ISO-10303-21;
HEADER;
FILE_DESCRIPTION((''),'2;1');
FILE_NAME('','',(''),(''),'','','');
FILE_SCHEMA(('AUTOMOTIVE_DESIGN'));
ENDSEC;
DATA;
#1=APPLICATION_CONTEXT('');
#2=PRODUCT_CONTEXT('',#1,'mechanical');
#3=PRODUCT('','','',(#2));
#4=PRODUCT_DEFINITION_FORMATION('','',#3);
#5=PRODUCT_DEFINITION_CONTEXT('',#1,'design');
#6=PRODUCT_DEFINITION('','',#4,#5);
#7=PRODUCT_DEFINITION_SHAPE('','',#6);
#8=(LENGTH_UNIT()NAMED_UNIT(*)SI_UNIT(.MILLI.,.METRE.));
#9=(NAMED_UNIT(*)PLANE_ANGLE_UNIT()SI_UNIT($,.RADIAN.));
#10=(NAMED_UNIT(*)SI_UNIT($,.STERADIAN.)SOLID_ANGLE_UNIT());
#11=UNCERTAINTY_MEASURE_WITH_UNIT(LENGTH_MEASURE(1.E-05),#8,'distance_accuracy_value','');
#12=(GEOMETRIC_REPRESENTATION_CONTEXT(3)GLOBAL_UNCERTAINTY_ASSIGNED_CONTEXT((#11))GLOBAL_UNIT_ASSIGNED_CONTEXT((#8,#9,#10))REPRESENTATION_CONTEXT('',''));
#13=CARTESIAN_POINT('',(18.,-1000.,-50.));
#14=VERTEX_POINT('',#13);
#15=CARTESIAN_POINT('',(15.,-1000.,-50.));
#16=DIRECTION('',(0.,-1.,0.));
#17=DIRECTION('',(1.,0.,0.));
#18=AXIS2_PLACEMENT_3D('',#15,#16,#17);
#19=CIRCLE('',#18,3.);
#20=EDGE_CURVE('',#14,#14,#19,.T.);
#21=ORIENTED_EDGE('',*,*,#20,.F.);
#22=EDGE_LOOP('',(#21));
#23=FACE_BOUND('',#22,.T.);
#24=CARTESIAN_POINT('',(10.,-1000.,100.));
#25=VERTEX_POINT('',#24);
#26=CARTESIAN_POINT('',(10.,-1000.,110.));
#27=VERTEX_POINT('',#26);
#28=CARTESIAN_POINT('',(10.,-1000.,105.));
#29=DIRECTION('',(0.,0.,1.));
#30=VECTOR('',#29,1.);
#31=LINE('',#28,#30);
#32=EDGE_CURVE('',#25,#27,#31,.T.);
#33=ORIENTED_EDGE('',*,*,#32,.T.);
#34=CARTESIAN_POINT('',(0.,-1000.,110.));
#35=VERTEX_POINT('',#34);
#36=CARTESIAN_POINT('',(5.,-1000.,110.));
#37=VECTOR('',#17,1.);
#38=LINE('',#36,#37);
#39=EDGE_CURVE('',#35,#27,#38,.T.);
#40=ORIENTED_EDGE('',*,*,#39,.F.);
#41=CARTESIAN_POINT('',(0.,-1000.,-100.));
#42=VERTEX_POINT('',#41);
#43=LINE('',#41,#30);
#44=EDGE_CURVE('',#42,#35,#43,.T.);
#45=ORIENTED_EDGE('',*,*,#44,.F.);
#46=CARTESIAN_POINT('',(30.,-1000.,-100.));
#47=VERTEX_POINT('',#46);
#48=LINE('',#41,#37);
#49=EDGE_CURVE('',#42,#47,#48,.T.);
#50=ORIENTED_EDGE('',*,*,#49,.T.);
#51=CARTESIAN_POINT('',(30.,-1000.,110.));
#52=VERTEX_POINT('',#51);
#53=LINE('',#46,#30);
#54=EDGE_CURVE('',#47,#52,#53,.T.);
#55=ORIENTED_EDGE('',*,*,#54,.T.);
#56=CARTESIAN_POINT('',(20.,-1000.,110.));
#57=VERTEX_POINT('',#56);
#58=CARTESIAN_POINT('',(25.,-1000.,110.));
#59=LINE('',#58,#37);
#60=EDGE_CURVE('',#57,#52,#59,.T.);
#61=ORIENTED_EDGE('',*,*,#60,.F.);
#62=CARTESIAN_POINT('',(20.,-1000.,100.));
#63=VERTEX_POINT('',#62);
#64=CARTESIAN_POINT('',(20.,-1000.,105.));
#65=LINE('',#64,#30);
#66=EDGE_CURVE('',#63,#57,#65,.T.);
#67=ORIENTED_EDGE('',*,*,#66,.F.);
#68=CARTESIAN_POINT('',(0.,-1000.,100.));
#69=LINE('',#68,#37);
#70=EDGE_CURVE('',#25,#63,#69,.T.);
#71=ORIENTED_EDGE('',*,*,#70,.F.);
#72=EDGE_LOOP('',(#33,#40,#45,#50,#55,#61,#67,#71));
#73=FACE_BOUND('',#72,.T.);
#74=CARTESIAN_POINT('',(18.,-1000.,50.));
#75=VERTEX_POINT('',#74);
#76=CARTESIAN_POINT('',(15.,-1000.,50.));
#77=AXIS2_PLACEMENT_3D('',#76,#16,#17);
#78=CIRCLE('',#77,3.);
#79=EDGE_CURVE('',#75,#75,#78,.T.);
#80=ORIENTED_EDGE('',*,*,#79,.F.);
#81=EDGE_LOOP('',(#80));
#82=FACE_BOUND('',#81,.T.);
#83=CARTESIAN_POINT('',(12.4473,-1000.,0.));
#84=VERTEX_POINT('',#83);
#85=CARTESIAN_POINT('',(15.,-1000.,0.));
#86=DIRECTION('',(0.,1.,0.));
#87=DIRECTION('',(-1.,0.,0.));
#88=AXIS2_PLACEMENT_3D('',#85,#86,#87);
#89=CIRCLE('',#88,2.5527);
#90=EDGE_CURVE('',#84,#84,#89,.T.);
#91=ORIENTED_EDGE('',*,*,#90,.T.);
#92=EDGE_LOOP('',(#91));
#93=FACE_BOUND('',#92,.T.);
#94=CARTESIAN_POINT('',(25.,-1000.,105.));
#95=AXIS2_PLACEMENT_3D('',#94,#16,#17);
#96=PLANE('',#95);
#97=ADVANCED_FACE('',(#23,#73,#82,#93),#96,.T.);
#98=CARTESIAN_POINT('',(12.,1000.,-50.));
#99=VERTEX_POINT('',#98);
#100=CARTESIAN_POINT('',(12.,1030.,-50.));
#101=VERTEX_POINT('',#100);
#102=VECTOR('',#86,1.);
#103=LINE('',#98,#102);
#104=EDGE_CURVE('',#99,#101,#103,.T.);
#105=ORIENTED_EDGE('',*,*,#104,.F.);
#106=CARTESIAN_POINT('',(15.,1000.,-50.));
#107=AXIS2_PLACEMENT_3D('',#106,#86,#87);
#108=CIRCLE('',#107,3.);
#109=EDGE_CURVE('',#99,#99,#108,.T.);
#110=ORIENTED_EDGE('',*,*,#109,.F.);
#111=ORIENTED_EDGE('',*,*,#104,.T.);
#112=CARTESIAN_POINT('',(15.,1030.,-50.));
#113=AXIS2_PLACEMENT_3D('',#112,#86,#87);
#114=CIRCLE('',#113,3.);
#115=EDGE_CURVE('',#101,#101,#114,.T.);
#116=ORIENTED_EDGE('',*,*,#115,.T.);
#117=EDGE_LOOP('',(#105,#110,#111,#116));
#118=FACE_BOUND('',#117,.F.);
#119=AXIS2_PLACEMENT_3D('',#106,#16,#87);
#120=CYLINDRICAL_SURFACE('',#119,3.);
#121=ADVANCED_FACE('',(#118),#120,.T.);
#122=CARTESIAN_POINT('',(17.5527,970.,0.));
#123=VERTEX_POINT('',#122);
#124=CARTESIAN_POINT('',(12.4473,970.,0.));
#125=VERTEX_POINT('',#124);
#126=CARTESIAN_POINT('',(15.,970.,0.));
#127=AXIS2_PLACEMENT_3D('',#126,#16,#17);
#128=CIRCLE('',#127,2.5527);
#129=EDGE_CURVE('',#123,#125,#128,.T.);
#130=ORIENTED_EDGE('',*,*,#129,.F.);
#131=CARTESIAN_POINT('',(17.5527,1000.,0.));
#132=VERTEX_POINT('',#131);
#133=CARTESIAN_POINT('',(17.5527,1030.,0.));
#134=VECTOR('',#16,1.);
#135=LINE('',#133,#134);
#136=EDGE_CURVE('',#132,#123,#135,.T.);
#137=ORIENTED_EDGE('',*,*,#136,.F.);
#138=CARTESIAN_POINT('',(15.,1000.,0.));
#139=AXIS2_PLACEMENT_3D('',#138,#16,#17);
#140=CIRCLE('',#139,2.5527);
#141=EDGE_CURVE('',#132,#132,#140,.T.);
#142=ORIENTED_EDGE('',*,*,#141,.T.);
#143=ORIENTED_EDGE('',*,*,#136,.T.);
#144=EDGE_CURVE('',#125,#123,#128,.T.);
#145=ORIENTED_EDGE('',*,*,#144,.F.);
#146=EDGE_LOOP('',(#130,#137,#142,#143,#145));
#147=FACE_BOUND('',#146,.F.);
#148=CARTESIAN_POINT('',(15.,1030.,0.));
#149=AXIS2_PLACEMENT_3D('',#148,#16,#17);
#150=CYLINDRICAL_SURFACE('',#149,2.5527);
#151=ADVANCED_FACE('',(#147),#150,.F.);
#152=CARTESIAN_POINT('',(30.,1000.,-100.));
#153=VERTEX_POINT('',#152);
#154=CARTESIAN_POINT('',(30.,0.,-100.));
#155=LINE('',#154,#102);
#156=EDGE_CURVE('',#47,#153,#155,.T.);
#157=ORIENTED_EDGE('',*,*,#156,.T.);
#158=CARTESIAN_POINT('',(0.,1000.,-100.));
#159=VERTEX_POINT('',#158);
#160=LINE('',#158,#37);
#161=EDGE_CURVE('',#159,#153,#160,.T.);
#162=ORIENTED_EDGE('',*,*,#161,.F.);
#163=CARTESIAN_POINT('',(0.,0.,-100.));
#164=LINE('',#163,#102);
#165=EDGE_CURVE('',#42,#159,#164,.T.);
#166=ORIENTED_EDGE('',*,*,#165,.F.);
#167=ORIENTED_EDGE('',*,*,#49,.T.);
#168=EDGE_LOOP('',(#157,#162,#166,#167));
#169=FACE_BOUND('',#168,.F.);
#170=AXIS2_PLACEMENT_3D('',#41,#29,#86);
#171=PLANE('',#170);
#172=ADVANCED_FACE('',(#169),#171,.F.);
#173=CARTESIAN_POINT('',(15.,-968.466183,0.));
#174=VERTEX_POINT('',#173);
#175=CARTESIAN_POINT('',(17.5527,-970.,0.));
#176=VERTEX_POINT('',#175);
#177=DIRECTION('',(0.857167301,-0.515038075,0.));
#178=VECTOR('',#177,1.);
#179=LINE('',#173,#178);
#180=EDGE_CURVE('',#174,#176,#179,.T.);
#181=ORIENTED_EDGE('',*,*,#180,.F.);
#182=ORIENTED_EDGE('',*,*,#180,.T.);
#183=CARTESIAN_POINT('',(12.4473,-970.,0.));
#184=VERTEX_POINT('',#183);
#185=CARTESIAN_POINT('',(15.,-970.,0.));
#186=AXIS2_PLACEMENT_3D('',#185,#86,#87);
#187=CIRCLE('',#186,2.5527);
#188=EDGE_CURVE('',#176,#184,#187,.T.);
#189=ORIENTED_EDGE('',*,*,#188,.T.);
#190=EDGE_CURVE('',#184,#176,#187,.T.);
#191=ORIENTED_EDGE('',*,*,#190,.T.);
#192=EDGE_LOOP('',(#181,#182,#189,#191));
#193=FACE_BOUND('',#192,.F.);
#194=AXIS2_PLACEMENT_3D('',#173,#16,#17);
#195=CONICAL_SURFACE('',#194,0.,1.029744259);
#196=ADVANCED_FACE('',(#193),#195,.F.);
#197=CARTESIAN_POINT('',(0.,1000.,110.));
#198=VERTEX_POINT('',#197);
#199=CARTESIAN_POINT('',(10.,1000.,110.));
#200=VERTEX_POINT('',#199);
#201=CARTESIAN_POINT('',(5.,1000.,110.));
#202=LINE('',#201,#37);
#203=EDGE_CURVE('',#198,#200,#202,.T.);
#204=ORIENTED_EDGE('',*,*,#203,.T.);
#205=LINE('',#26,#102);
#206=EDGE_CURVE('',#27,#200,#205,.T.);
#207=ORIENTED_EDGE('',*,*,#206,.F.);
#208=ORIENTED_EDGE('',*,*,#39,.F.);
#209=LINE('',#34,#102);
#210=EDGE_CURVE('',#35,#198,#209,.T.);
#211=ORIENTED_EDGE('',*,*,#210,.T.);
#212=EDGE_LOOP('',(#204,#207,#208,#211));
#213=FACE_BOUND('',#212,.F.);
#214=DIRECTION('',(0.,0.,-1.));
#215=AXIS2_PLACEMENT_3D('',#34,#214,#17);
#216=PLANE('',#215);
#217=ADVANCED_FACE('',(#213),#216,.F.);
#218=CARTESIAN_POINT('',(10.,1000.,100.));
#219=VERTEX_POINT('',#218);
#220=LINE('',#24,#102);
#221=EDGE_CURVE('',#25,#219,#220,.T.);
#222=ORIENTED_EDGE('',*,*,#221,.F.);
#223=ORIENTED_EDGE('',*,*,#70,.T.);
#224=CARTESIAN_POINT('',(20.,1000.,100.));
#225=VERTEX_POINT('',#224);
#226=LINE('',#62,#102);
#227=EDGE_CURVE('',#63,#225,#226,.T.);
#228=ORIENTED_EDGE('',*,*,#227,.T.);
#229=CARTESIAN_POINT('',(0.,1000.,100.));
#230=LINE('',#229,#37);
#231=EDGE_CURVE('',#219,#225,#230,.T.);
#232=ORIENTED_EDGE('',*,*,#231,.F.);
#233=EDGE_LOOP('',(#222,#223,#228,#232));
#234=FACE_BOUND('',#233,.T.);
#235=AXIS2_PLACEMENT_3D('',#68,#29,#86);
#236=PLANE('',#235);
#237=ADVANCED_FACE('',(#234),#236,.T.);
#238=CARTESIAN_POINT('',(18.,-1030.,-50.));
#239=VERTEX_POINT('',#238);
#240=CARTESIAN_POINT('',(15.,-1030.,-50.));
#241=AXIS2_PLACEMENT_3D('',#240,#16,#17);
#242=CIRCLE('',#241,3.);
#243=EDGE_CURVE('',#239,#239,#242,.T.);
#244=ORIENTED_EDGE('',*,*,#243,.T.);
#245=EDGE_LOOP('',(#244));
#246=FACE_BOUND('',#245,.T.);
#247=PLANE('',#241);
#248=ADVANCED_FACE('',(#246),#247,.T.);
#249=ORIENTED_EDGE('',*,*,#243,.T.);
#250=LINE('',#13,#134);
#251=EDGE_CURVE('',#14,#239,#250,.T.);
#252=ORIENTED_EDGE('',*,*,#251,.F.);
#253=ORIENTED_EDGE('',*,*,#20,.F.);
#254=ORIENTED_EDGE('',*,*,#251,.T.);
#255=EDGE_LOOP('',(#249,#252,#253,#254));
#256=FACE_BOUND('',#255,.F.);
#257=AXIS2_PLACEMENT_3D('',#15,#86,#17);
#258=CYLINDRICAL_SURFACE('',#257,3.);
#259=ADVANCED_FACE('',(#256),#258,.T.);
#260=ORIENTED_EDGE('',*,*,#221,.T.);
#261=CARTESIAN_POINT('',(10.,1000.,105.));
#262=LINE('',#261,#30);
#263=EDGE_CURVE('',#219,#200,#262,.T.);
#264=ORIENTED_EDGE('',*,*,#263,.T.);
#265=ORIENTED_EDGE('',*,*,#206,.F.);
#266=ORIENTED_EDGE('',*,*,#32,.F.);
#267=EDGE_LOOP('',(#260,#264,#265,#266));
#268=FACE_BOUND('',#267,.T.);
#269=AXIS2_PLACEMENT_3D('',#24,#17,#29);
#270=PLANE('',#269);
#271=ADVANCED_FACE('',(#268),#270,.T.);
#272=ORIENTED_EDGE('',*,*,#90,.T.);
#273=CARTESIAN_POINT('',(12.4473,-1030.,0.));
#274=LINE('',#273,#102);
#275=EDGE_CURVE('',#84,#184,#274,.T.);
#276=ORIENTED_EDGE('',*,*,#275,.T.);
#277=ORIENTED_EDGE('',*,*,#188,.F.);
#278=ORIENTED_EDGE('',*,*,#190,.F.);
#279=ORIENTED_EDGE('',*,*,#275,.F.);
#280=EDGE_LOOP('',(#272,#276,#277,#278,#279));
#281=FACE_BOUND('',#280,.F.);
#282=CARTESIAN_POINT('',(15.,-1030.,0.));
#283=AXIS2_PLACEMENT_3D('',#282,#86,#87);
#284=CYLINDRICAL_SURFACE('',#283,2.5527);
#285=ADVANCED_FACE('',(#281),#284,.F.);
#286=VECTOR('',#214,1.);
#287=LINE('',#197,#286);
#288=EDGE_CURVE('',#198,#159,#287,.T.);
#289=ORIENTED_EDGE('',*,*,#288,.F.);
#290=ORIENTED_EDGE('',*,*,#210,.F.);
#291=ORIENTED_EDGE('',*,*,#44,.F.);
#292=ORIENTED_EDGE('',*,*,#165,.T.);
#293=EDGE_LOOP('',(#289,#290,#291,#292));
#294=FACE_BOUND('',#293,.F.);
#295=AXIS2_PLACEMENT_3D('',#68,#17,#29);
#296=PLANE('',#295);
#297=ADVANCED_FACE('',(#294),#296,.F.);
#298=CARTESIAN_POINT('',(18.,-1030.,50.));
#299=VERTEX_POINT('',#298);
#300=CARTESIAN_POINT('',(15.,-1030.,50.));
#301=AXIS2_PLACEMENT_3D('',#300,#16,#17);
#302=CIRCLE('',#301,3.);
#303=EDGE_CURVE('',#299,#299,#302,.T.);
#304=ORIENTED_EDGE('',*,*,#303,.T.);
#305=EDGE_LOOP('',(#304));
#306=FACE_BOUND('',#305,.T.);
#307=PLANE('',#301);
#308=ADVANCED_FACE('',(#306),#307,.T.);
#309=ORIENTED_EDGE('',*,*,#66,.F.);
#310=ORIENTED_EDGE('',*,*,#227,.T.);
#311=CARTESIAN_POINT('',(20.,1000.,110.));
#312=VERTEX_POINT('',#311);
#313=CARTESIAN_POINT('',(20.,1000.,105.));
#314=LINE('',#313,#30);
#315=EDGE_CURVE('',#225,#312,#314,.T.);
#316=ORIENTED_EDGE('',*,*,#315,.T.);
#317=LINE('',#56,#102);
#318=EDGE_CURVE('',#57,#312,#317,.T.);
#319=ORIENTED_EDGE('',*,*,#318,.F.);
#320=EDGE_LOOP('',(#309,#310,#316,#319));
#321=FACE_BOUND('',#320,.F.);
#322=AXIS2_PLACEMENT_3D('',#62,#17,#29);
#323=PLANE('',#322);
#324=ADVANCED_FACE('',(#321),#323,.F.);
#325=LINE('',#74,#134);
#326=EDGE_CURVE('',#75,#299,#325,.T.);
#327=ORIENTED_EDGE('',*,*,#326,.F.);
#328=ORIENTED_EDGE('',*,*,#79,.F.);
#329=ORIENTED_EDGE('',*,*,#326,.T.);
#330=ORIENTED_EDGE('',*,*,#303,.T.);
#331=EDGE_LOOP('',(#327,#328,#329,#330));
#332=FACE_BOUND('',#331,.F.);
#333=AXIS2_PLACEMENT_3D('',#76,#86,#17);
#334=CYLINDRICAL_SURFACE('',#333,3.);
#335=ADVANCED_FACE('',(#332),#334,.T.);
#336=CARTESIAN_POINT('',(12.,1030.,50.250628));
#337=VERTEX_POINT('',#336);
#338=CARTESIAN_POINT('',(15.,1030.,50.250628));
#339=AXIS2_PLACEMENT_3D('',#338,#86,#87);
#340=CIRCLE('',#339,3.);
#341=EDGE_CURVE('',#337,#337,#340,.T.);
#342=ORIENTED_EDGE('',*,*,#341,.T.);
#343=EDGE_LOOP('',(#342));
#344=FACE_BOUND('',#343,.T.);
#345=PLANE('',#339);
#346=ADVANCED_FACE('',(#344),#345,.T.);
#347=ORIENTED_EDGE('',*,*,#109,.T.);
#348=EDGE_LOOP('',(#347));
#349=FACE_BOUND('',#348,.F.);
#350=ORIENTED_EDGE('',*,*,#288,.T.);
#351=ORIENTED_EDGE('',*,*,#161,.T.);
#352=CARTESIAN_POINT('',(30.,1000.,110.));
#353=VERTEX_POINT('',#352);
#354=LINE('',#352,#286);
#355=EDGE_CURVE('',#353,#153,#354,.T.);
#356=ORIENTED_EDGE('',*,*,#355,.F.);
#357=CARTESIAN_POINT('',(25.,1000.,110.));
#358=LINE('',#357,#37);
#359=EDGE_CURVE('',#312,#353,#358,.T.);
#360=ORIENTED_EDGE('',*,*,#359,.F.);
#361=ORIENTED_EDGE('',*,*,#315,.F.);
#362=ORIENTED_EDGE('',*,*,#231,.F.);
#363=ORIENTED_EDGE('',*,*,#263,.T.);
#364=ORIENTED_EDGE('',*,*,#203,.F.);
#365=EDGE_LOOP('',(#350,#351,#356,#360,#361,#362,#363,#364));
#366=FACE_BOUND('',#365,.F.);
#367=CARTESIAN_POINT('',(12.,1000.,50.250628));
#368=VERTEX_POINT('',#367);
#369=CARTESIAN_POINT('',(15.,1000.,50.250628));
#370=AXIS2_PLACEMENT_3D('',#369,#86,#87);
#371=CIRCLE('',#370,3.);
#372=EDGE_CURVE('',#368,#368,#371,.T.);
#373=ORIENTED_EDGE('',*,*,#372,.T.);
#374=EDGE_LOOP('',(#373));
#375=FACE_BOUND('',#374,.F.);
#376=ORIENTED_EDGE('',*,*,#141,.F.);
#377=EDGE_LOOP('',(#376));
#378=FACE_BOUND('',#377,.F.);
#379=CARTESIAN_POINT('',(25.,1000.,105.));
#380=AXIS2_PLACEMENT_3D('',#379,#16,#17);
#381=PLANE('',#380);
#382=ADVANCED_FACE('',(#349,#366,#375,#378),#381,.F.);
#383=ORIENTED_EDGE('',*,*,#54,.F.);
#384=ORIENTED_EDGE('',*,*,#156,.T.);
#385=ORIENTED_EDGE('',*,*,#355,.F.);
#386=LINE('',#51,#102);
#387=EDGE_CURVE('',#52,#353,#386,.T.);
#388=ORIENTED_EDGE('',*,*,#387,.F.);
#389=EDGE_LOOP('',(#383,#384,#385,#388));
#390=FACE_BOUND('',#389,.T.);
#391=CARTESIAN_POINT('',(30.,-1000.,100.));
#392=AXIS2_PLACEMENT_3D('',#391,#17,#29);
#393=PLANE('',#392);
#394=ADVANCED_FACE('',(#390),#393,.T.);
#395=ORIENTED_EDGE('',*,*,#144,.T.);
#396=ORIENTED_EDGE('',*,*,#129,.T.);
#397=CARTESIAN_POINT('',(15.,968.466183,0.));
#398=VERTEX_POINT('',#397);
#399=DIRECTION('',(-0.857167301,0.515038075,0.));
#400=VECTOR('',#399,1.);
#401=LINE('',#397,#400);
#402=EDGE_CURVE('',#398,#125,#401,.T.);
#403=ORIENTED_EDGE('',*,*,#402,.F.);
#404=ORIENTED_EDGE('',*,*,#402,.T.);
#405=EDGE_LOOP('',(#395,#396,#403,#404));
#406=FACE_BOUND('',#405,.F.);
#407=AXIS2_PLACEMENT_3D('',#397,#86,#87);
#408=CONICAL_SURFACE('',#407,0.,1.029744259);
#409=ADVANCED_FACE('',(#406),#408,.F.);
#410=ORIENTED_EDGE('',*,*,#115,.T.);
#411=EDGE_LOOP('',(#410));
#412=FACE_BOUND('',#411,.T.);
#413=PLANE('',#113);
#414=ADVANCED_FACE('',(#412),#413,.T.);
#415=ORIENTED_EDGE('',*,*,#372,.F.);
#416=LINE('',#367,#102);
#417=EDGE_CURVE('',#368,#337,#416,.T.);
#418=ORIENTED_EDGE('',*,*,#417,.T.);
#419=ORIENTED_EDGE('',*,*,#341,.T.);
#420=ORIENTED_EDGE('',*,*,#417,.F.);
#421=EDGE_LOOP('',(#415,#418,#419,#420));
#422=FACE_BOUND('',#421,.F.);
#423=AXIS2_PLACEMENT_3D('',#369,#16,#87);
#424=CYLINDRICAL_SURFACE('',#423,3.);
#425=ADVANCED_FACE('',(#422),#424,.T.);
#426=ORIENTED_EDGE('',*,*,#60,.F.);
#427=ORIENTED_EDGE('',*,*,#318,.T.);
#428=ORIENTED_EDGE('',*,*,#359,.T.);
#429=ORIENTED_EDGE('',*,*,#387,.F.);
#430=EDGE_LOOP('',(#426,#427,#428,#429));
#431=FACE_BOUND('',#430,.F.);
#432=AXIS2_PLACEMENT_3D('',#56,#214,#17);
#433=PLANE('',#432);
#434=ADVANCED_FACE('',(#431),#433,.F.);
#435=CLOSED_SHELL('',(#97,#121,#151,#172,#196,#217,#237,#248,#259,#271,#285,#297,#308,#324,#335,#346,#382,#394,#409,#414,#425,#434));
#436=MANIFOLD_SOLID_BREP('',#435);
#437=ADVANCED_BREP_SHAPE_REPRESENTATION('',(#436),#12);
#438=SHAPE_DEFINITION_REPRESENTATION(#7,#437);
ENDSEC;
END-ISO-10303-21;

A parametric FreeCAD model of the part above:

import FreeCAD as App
import Part
import Sketcher
from FreeCAD import Vector


def add_polygon(sketch, points):
    """Adds a closed chain of lines whose ends are joined by coincident constraints."""
    first, n = sketch.GeometryCount, len(points)
    for a, b in zip(points, points[1:] + points[:1]):
        sketch.addGeometry(Part.LineSegment(App.Vector(*a, 0), App.Vector(*b, 0)), False)
    for i in range(n):
        sketch.addConstraint(Sketcher.Constraint("Coincident", first + i, 2, first + (i + 1) % n, 1))

doc = App.newDocument("Part")
body = doc.addObject("PartDesign::Body", "Body")

sketch1 = body.newObject("Sketcher::SketchObject", "Sketch")
sketch1.AttachmentSupport = (doc.getObject("YZ_Plane"), [""])
sketch1.MapMode = "FlatFace"
add_polygon(sketch1, [(-1000, 100), (-1000, -100), (1000, -100), (1000, 100)])
sketch1.addConstraint([
    Sketcher.Constraint("Vertical", 0),
    Sketcher.Constraint("Horizontal", 1),
    Sketcher.Constraint("Vertical", 2),
    Sketcher.Constraint("Horizontal", 3),
    Sketcher.Constraint("Symmetric", 0, 2, 2, 2, -1, 1),
    Sketcher.Constraint("DistanceX", 1, 1, 1, 2, 2000.0),
    Sketcher.Constraint("DistanceY", 0, 2, 0, 1, 200.0),
])
pad1 = body.newObject("PartDesign::Pad", "Pad")
pad1.Profile = sketch1
pad1.Length = 30

sketch2 = body.newObject("Sketcher::SketchObject", "Sketch001")
sketch2.AttachmentSupport = (doc.getObject("XZ_Plane"), [""])
sketch2.MapMode = "FlatFace"
sketch2.AttachmentOffset = App.Placement(Vector(0, 0, 1000), App.Rotation())
add_polygon(sketch2, [(0, 110), (0, 100), (10, 100), (10, 110)])
sketch2.addConstraint([
    Sketcher.Constraint("Vertical", 0),
    Sketcher.Constraint("Horizontal", 1),
    Sketcher.Constraint("Vertical", 2),
    Sketcher.Constraint("Horizontal", 3),
    Sketcher.Constraint("PointOnObject", 0, 2, -2),
    Sketcher.Constraint("Equal", 3, 0),
    Sketcher.Constraint("DistanceX", 1, 1, 1, 2, 10.0),
    Sketcher.Constraint("DistanceY", -1, 1, 0, 2, 100.0),
])
pad2 = body.newObject("PartDesign::Pad", "Pad001")
pad2.Profile = sketch2
pad2.Length = 2000
pad2.Reversed = True

sketch3 = body.newObject("Sketcher::SketchObject", "Sketch002")
sketch3.AttachmentSupport = (doc.getObject("XZ_Plane"), [""])
sketch3.MapMode = "FlatFace"
sketch3.AttachmentOffset = App.Placement(Vector(0, 0, -1000), App.Rotation())
sketch3.addGeometry([
    Part.Circle(Vector(15, -50, 0), Vector(0, 0, 1), 3),
    Part.Circle(Vector(15, 50.3, 0), Vector(0, 0, 1), 3),
], False)
sketch3.addConstraint([
    Sketcher.Constraint("Equal", 0, 1),
    Sketcher.Constraint("Vertical", 0, 3, 1, 3),
    Sketcher.Constraint("Diameter", 0, 6.0),
    Sketcher.Constraint("DistanceX", -1, 1, 0, 3, 15.0),
    Sketcher.Constraint("DistanceY", 0, 3, -1, 1, 50.0),
    Sketcher.Constraint("DistanceY", -1, 1, 1, 3, 50.250628),
])
pad3 = body.newObject("PartDesign::Pad", "Pad002")
pad3.Profile = sketch3
pad3.Length = 30
pad3.Reversed = True

sketch4 = body.newObject("Sketcher::SketchObject", "Sketch003")
sketch4.AttachmentSupport = (doc.getObject("XZ_Plane"), [""])
sketch4.MapMode = "FlatFace"
sketch4.AttachmentOffset = App.Placement(Vector(0, 0, 1000), App.Rotation())
sketch4.addGeometry([
    Part.Circle(Vector(15, 50, 0), Vector(0, 0, 1), 3),
    Part.Circle(Vector(15, -50, 0), Vector(0, 0, 1), 3),
], False)
sketch4.addConstraint([
    Sketcher.Constraint("Equal", 0, 1),
    Sketcher.Constraint("Symmetric", 0, 3, 1, 3, -1),
    Sketcher.Constraint("Diameter", 0, 6.0),
    Sketcher.Constraint("DistanceX", -1, 1, 0, 3, 15.0),
    Sketcher.Constraint("DistanceY", -1, 1, 0, 3, 50.0),
])
pad4 = body.newObject("PartDesign::Pad", "Pad003")
pad4.Profile = sketch4
pad4.Length = 30

sketch5 = body.newObject("Sketcher::SketchObject", "Sketch004")
sketch5.AttachmentSupport = (doc.getObject("XZ_Plane"), [""])
sketch5.MapMode = "FlatFace"
sketch5.AttachmentOffset = App.Placement(Vector(0, 0, 1000), App.Rotation())
add_polygon(sketch5, [(20, 110), (20, 100), (30, 100), (30, 110)])
sketch5.addConstraint([
    Sketcher.Constraint("Vertical", 0),
    Sketcher.Constraint("Horizontal", 1),
    Sketcher.Constraint("Vertical", 2),
    Sketcher.Constraint("Horizontal", 3),
    Sketcher.Constraint("Equal", 3, 0),
    Sketcher.Constraint("DistanceX", 1, 1, 1, 2, 10.0),
    Sketcher.Constraint("DistanceX", -1, 1, 0, 2, 20.0),
    Sketcher.Constraint("DistanceY", -1, 1, 0, 2, 100.0),
])
pad5 = body.newObject("PartDesign::Pad", "Pad004")
pad5.Profile = sketch5
pad5.Length = 2000
pad5.Reversed = True

sketch6 = body.newObject("Sketcher::SketchObject", "Sketch005")
sketch6.AttachmentSupport = (doc.getObject("XZ_Plane"), [""])
sketch6.MapMode = "FlatFace"
sketch6.AttachmentOffset = App.Placement(Vector(0, 0, 1000), App.Rotation())
sketch6.addGeometry(Part.Circle(Vector(15, 0, 0), Vector(0, 0, 1), 2.6), False)
sketch6.addConstraint([
    Sketcher.Constraint("PointOnObject", 0, 3, -1),
    Sketcher.Constraint("DistanceX", -1, 1, 0, 3, 15.0),
    Sketcher.Constraint("Diameter", 0, 5.1054),
])
doc.recompute()
hole = body.newObject("PartDesign::Hole", "Hole")
hole.Profile = sketch6
hole.ThreadType = "None"
hole.Diameter = 5.1054
hole.DepthType = "Dimension"
hole.Depth = 30
hole.DrillPoint = "Angled"
hole.DrillPointAngle = 118

sketch7 = body.newObject("Sketcher::SketchObject", "Sketch006")
sketch7.AttachmentSupport = (doc.getObject("XZ_Plane"), [""])
sketch7.MapMode = "FlatFace"
sketch7.AttachmentOffset = App.Placement(Vector(0, 0, -1000), App.Rotation())
sketch7.addGeometry(Part.Circle(Vector(15, 0, 0), Vector(0, 0, 1), 2.6), False)
sketch7.addConstraint([
    Sketcher.Constraint("PointOnObject", 0, 3, -1),
    Sketcher.Constraint("DistanceX", -1, 1, 0, 3, 15.0),
    Sketcher.Constraint("Diameter", 0, 5.1054),
])
doc.recompute()
hole2 = body.newObject("PartDesign::Hole", "Hole001")
hole2.Profile = sketch7
hole2.ThreadType = "None"
hole2.Diameter = 5.1054
hole2.DepthType = "Dimension"
hole2.Depth = 30
hole2.DrillPoint = "Angled"
hole2.DrillPointAngle = 118
hole2.Reversed = True

doc.recompute()
